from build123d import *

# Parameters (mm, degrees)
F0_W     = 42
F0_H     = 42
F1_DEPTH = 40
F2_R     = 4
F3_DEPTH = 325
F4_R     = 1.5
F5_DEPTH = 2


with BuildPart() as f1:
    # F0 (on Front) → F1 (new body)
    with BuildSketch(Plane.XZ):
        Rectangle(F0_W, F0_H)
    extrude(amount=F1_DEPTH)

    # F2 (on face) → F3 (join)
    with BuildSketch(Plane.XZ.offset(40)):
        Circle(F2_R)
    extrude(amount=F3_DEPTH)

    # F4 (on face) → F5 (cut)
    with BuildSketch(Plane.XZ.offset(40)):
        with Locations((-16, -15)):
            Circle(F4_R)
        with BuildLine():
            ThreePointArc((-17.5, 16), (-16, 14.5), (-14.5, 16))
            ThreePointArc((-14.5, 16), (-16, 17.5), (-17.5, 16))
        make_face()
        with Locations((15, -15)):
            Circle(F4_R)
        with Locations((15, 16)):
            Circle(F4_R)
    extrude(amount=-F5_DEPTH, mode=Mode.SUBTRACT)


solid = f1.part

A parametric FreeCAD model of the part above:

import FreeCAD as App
import Part
import Sketcher

V = App.Vector


def add_polygon(sketch, points):
    """Adds a closed chain of lines whose ends are joined by coincident constraints."""
    first, n = sketch.GeometryCount, len(points)
    for a, b in zip(points, points[1:] + points[:1]):
        sketch.addGeometry(Part.LineSegment(App.Vector(*a, 0), App.Vector(*b, 0)), False)
    for i in range(n):
        sketch.addConstraint(Sketcher.Constraint("Coincident", first + i, 2, first + (i + 1) % n, 1))

doc = App.newDocument("Part")
params = doc.addObject("Spreadsheet::Sheet", "Params")
for row, (alias, value) in enumerate([
    ("sketch1_width", "42 mm"),
    ("pad1_length", "40 mm"),
    ("sketch2_diameter", "8 mm"),
    ("pad2_length", "325 mm"),
    ("sketch3_diameter", "3 mm"),
    ("pocket1_length", "2 mm"),
], start=1):
    params.set(f"A{row}", alias)
    params.set(f"B{row}", "=" + value)
    params.setAlias(f"B{row}", alias)

body = doc.addObject("PartDesign::Body", "Body")

sketch1 = body.newObject("Sketcher::SketchObject", "Sketch")
sketch1.AttachmentSupport = (doc.getObject("XZ_Plane"), [""])
sketch1.MapMode = "FlatFace"
add_polygon(sketch1, [(-21, 21), (-21, -21), (21, -21), (21, 21)])
sketch1.addConstraint([
    Sketcher.Constraint("Vertical", 0),
    Sketcher.Constraint("Horizontal", 1),
    Sketcher.Constraint("Vertical", 2),
    Sketcher.Constraint("Horizontal", 3),
    Sketcher.Constraint("Symmetric", 0, 2, 2, 2, -1, 1),
    Sketcher.Constraint("Equal", 3, 0),
    Sketcher.Constraint("DistanceX", 1, 1, 1, 2, 42.0),
])
sketch1.setExpression("Constraints[10]", "Params.sketch1_width")
pad1 = body.newObject("PartDesign::Pad", "Pad")
pad1.Profile = sketch1
pad1.setExpression("Length", "Params.pad1_length")

sketch2 = body.newObject("Sketcher::SketchObject", "Sketch001")
sketch2.AttachmentSupport = (doc.getObject("XZ_Plane"), [""])
sketch2.MapMode = "FlatFace"
sketch2.AttachmentOffset = App.Placement(V(0, 0, 40), App.Rotation())
sketch2.addGeometry(Part.Circle(V(0, 0, 0), V(0, 0, 1), 4), False)
sketch2.addConstraint([
    Sketcher.Constraint("Coincident", 0, 3, -1, 1),
    Sketcher.Constraint("Diameter", 0, 8.0),
])
sketch2.setExpression("Constraints[1]", "Params.sketch2_diameter")
pad2 = body.newObject("PartDesign::Pad", "Pad001")
pad2.Profile = sketch2
pad2.setExpression("Length", "Params.pad2_length")

sketch3 = body.newObject("Sketcher::SketchObject", "Sketch002")
sketch3.AttachmentSupport = (doc.getObject("XZ_Plane"), [""])
sketch3.MapMode = "FlatFace"
sketch3.AttachmentOffset = App.Placement(V(0, 0, 40), App.Rotation())
sketch3.addGeometry([
    Part.Circle(V(-16, -15, 0), V(0, 0, 1), 1.5),
    Part.Circle(V(-16, 16, 0), V(0, 0, 1), 1.5),
    Part.Circle(V(15, -15, 0), V(0, 0, 1), 1.5),
    Part.Circle(V(15, 16, 0), V(0, 0, 1), 1.5),
], False)
sketch3.addConstraint([
    Sketcher.Constraint("Equal", 0, 1),
    Sketcher.Constraint("Equal", 1, 2),
    Sketcher.Constraint("Equal", 2, 3),
    Sketcher.Constraint("Horizontal", 0, 3, 2, 3),
    Sketcher.Constraint("Horizontal", 1, 3, 3, 3),
    Sketcher.Constraint("Vertical", 0, 3, 1, 3),
    Sketcher.Constraint("Vertical", 2, 3, 3, 3),
    Sketcher.Constraint("Diameter", 0, 3.0),
    Sketcher.Constraint("DistanceX", 0, 3, -1, 1, 16.0),
    Sketcher.Constraint("DistanceY", 0, 3, -1, 1, 15.0),
    Sketcher.Constraint("DistanceY", -1, 1, 1, 3, 16.0),
    Sketcher.Constraint("DistanceX", -1, 1, 2, 3, 15.0),
])
sketch3.setExpression("Constraints[7]", "Params.sketch3_diameter")
pocket1 = body.newObject("PartDesign::Pocket", "Pocket")
pocket1.Profile = sketch3
pocket1.setExpression("Length", "Params.pocket1_length")

doc.recompute()
